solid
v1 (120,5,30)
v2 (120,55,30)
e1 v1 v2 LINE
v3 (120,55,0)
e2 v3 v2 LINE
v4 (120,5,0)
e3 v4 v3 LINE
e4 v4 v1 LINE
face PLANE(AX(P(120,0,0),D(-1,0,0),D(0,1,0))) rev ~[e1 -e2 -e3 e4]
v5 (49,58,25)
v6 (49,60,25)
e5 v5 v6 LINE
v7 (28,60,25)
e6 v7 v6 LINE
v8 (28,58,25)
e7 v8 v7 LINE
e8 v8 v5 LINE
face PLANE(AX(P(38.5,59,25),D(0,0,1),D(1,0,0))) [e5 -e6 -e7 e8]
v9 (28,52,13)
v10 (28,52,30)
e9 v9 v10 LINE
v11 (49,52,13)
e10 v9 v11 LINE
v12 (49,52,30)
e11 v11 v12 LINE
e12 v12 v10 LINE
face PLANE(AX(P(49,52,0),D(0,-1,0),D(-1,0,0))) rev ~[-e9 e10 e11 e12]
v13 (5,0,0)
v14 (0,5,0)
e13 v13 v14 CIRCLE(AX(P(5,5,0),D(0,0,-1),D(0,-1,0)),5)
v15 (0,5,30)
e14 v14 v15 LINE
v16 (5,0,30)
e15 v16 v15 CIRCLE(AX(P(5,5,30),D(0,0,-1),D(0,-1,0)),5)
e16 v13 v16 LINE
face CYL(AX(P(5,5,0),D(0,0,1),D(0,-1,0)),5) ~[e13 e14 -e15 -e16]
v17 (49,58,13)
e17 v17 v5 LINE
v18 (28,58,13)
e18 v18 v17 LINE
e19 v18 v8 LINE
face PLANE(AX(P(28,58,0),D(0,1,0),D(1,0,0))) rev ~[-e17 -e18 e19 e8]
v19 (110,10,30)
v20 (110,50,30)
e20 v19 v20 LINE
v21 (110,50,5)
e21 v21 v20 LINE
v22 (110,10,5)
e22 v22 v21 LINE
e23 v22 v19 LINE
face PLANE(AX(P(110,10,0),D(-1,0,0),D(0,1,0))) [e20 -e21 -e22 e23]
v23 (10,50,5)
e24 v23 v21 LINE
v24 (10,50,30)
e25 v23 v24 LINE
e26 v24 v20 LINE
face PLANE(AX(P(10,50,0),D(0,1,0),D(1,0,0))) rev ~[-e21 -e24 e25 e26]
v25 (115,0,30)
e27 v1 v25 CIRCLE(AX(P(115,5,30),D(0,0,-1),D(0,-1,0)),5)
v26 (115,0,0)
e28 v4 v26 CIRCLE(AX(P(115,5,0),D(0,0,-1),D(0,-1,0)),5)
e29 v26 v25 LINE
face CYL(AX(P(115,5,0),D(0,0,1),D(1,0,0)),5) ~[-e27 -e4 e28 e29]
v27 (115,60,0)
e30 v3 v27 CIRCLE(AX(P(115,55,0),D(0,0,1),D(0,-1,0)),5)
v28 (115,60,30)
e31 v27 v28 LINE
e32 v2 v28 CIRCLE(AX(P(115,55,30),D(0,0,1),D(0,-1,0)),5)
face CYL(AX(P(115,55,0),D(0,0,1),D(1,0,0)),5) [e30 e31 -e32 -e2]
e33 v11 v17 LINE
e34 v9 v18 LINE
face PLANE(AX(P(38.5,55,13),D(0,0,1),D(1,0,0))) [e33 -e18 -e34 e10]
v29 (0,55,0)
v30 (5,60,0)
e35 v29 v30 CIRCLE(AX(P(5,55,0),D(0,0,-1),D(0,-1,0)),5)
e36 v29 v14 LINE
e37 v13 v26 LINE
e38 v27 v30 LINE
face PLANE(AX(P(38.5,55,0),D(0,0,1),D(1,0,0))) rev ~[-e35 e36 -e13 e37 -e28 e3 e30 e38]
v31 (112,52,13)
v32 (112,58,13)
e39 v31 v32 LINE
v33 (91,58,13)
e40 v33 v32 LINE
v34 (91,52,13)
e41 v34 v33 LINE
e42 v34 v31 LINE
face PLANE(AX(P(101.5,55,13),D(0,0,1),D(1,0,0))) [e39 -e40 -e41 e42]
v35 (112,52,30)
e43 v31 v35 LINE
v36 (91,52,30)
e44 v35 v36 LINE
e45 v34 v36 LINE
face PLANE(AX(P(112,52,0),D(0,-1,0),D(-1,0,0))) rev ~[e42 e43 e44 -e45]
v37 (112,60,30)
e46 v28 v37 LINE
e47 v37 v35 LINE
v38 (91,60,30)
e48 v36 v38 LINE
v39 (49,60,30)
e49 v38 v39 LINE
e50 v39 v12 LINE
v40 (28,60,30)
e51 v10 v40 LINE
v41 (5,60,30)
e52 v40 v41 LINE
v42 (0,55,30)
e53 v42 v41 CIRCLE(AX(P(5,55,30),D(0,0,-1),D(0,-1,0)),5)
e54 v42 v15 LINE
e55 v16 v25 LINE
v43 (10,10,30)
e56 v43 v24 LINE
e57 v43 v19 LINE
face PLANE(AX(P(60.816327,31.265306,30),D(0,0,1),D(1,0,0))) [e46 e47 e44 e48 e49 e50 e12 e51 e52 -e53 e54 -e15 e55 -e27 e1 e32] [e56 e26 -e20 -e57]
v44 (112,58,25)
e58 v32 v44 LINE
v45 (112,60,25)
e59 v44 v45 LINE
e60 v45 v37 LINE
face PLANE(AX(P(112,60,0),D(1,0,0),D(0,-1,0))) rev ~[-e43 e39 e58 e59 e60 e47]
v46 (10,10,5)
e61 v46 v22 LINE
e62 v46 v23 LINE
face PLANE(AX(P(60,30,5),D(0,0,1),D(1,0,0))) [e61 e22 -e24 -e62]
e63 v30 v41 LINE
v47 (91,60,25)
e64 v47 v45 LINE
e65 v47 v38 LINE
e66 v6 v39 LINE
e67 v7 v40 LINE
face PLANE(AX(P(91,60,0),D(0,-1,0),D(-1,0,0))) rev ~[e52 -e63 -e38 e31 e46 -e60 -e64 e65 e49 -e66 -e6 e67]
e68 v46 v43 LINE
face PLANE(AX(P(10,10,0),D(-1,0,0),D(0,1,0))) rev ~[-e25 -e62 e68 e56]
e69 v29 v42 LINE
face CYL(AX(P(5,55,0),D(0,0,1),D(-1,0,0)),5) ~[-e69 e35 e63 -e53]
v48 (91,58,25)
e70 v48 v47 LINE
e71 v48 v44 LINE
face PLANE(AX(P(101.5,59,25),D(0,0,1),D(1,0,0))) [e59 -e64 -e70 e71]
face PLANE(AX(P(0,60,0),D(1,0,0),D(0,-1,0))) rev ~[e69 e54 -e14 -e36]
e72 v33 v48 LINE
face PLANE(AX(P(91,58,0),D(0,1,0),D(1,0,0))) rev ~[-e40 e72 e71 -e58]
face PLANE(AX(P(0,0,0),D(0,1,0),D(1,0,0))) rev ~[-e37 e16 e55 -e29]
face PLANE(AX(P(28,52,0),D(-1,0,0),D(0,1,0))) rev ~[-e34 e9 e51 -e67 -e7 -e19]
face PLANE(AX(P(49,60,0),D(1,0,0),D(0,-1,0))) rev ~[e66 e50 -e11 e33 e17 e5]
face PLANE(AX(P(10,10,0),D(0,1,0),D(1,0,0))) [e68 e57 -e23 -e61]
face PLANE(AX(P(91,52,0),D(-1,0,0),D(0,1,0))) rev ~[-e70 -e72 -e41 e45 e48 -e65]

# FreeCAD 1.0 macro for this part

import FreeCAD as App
import Part
import Sketcher
from FreeCAD import Vector


def edges_at(feature, points):
    """Names of the edges that pass closest to the given points."""
    edges = feature.Shape.Edges
    near = lambda p: min(range(len(edges)), key=lambda i: edges[i].distToShape(Part.Vertex(*p))[0])
    return sorted({f"Edge{near(p) + 1}" for p in points})


def add_polygon(sketch, points):
    """Adds a closed chain of lines whose ends are joined by coincident constraints."""
    first, n = sketch.GeometryCount, len(points)
    for a, b in zip(points, points[1:] + points[:1]):
        sketch.addGeometry(Part.LineSegment(App.Vector(*a, 0), App.Vector(*b, 0)), False)
    for i in range(n):
        sketch.addConstraint(Sketcher.Constraint("Coincident", first + i, 2, first + (i + 1) % n, 1))

doc = App.newDocument("Part")
body = doc.addObject("PartDesign::Body", "Body")

sketch1 = body.newObject("Sketcher::SketchObject", "Sketch")
sketch1.AttachmentSupport = (doc.getObject("XY_Plane"), [""])
sketch1.MapMode = "FlatFace"
add_polygon(sketch1, [(0, 60), (0, 0), (120, 0), (120, 60), (112, 60), (112, 52), (91, 52), (91, 60), (49, 60), (49, 52), (28, 52), (28, 60)])
add_polygon(sketch1, [(110, 10), (10, 10), (10, 50), (110, 50)])
sketch1.addConstraint([
    Sketcher.Constraint("Vertical", 0),
    Sketcher.Constraint("Horizontal", 1),
    Sketcher.Constraint("Vertical", 2),
    Sketcher.Constraint("Horizontal", 3),
    Sketcher.Constraint("Vertical", 4),
    Sketcher.Constraint("Horizontal", 5),
    Sketcher.Constraint("Vertical", 6),
    Sketcher.Constraint("Horizontal", 7),
    Sketcher.Constraint("Vertical", 8),
    Sketcher.Constraint("Horizontal", 9),
    Sketcher.Constraint("Vertical", 10),
    Sketcher.Constraint("Horizontal", 11),
    Sketcher.Constraint("Horizontal", 12),
    Sketcher.Constraint("Vertical", 13),
    Sketcher.Constraint("Horizontal", 14),
    Sketcher.Constraint("Vertical", 15),
    Sketcher.Constraint("Coincident", 0, 2, -1, 1),
    Sketcher.Constraint("Horizontal", 3, 2, 6, 2),
    Sketcher.Constraint("Horizontal", 5, 2, 8, 2),
    Sketcher.Constraint("Horizontal", 7, 2, 10, 2),
    Sketcher.Constraint("Equal", 5, 9),
    Sketcher.Constraint("Equal", 3, 4),
    Sketcher.Constraint("DistanceX", 1, 1, 1, 2, 120.0),
    Sketcher.Constraint("DistanceX", 3, 2, 3, 1, 8.0),
    Sketcher.Constraint("DistanceX", 5, 2, 5, 1, 21.0),
    Sketcher.Constraint("DistanceX", 7, 2, 7, 1, 42.0),
    Sketcher.Constraint("DistanceX", 12, 2, 12, 1, 100.0),
    Sketcher.Constraint("DistanceY", 0, 2, 0, 1, 60.0),
    Sketcher.Constraint("DistanceY", 13, 1, 13, 2, 40.0),
    Sketcher.Constraint("DistanceX", -1, 1, 12, 2, 10.0),
    Sketcher.Constraint("DistanceY", -1, 1, 12, 2, 10.0),
])
pad1 = body.newObject("PartDesign::Pad", "Pad")
pad1.Profile = sketch1
pad1.Length = 30

sketch2 = body.newObject("Sketcher::SketchObject", "Sketch001")
sketch2.AttachmentSupport = (doc.getObject("XY_Plane"), [""])
sketch2.MapMode = "FlatFace"
add_polygon(sketch2, [(10, 50), (10, 10), (110, 10), (110, 50)])
sketch2.addConstraint([
    Sketcher.Constraint("Vertical", 0),
    Sketcher.Constraint("Horizontal", 1),
    Sketcher.Constraint("Vertical", 2),
    Sketcher.Constraint("Horizontal", 3),
    Sketcher.Constraint("DistanceX", 1, 1, 1, 2, 100.0),
    Sketcher.Constraint("DistanceY", 0, 2, 0, 1, 40.0),
    Sketcher.Constraint("DistanceX", -1, 1, 0, 2, 10.0),
    Sketcher.Constraint("DistanceY", -1, 1, 0, 2, 10.0),
])
pad2 = body.newObject("PartDesign::Pad", "Pad001")
pad2.Profile = sketch2
pad2.Length = 5

sketch3 = body.newObject("Sketcher::SketchObject", "Sketch002")
sketch3.AttachmentSupport = (doc.getObject("XY_Plane"), [""])
sketch3.MapMode = "FlatFace"
add_polygon(sketch3, [(28, 58), (28, 52), (49, 52), (49, 58)])
add_polygon(sketch3, [(91, 58), (91, 52), (112, 52), (112, 58)])
sketch3.addConstraint([
    Sketcher.Constraint("Vertical", 0),
    Sketcher.Constraint("Horizontal", 1),
    Sketcher.Constraint("Vertical", 2),
    Sketcher.Constraint("Horizontal", 3),
    Sketcher.Constraint("Vertical", 4),
    Sketcher.Constraint("Horizontal", 5),
    Sketcher.Constraint("Vertical", 6),
    Sketcher.Constraint("Horizontal", 7),
    Sketcher.Constraint("Horizontal", 1, 2, 4, 2),
    Sketcher.Constraint("Horizontal", 3, 2, 6, 2),
    Sketcher.Constraint("Equal", 3, 5),
    Sketcher.Constraint("DistanceX", 1, 1, 1, 2, 21.0),
    Sketcher.Constraint("DistanceY", 0, 2, 0, 1, 6.0),
    Sketcher.Constraint("DistanceX", -1, 1, 0, 2, 28.0),
    Sketcher.Constraint("DistanceY", -1, 1, 0, 2, 52.0),
    Sketcher.Constraint("DistanceX", -1, 1, 4, 2, 91.0),
])
pad3 = body.newObject("PartDesign::Pad", "Pad002")
pad3.Profile = sketch3
pad3.Length = 13

sketch4 = body.newObject("Sketcher::SketchObject", "Sketch003")
sketch4.AttachmentSupport = (doc.getObject("XY_Plane"), [""])
sketch4.MapMode = "FlatFace"
add_polygon(sketch4, [(28, 60), (28, 58), (49, 58), (49, 60)])
add_polygon(sketch4, [(91, 60), (91, 58), (112, 58), (112, 60)])
sketch4.addConstraint([
    Sketcher.Constraint("Vertical", 0),
    Sketcher.Constraint("Horizontal", 1),
    Sketcher.Constraint("Vertical", 2),
    Sketcher.Constraint("Horizontal", 3),
    Sketcher.Constraint("Vertical", 4),
    Sketcher.Constraint("Horizontal", 5),
    Sketcher.Constraint("Vertical", 6),
    Sketcher.Constraint("Horizontal", 7),
    Sketcher.Constraint("Horizontal", 1, 2, 4, 2),
    Sketcher.Constraint("Horizontal", 3, 2, 6, 2),
    Sketcher.Constraint("Equal", 3, 5),
    Sketcher.Constraint("DistanceX", 1, 1, 1, 2, 21.0),
    Sketcher.Constraint("DistanceY", 0, 2, 0, 1, 2.0),
    Sketcher.Constraint("DistanceX", -1, 1, 0, 2, 28.0),
    Sketcher.Constraint("DistanceY", -1, 1, 0, 2, 58.0),
    Sketcher.Constraint("DistanceX", -1, 1, 4, 2, 91.0),
])
pad4 = body.newObject("PartDesign::Pad", "Pad003")
pad4.Profile = sketch4
pad4.Length = 25
doc.recompute()

fillet = body.newObject("PartDesign::Fillet", "Fillet")
fillet.Base = (pad4, edges_at(pad4, [
    (0, 0, 15),
    (120, 0, 15),
    (120, 60, 15),
    (0, 60, 15),
]))
fillet.Radius = 5

doc.recompute()
